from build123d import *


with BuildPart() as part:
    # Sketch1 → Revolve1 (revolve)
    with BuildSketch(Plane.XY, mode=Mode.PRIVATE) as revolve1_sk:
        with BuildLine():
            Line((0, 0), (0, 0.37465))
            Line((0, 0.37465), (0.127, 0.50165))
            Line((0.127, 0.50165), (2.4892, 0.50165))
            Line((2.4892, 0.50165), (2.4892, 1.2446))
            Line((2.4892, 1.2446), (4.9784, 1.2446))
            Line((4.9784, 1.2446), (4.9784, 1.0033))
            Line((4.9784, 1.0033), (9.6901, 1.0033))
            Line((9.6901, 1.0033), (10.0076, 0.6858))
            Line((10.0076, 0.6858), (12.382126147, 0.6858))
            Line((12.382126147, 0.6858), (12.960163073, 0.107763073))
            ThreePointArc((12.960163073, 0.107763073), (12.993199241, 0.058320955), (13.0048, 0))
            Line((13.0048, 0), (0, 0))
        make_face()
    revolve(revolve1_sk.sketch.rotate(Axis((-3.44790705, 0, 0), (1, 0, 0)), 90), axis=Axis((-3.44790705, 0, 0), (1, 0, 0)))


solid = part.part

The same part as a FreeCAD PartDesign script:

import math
import FreeCAD as App
import Part
import Sketcher

V = App.Vector
Q = App.Units.Quantity

doc = App.newDocument("Part")
body = doc.addObject("PartDesign::Body", "Body")

# Sketch on XY plane
sketch1 = doc.addObject("Sketcher::SketchObject", "Sketch")
body.addObject(sketch1)
sketch1.AttachmentSupport = (doc.XY_Plane, [""])
sketch1.MapMode = "FlatFace"
sketch1.addGeometry([
    Part.LineSegment(V(0, 0.37465, 0), V(0, 0, 0)),  # 0
    Part.LineSegment(V(0, 0, 0), V(13.0048, 0, 0)),  # 1
    Part.ArcOfCircle(Part.Circle(V(12.8524, 0, 0), V(0, 0, 1), 0.1524), math.radians(-0.000001), math.radians(45.000001)),  # 2
    Part.LineSegment(V(12.960163, 0.107763, 0), V(12.382126, 0.6858, 0)),  # 3
    Part.LineSegment(V(12.382126, 0.6858, 0), V(10.0076, 0.6858, 0)),  # 4
    Part.LineSegment(V(10.0076, 0.6858, 0), V(9.6901, 1.0033, 0)),  # 5
    Part.LineSegment(V(9.6901, 1.0033, 0), V(4.9784, 1.0033, 0)),  # 6
    Part.LineSegment(V(4.9784, 1.0033, 0), V(4.9784, 1.2446, 0)),  # 7
    Part.LineSegment(V(4.9784, 1.2446, 0), V(2.4892, 1.2446, 0)),  # 8
    Part.LineSegment(V(2.4892, 1.2446, 0), V(2.4892, 0.50165, 0)),  # 9
    Part.LineSegment(V(2.4892, 0.50165, 0), V(0.127, 0.50165, 0)),  # 10
    Part.LineSegment(V(0.127, 0.50165, 0), V(0, 0.37465, 0)),  # 11
], False)
sketch1.addConstraint([
    Sketcher.Constraint("Coincident", 0, 2, 1, 1),
    Sketcher.Constraint("Coincident", 1, 2, 2, 1),
    Sketcher.Constraint("Tangent", 2, 2, 3, 1),
    Sketcher.Constraint("Coincident", 3, 2, 4, 1),
    Sketcher.Constraint("Coincident", 4, 2, 5, 1),
    Sketcher.Constraint("Coincident", 5, 2, 6, 1),
    Sketcher.Constraint("Coincident", 6, 2, 7, 1),
    Sketcher.Constraint("Coincident", 7, 2, 8, 1),
    Sketcher.Constraint("Coincident", 8, 2, 9, 1),
    Sketcher.Constraint("Coincident", 9, 2, 10, 1),
    Sketcher.Constraint("Coincident", 10, 2, 11, 1),
    Sketcher.Constraint("Coincident", 11, 2, 0, 1),
    Sketcher.Constraint("Vertical", 0),
    Sketcher.Constraint("Horizontal", 1),
    Sketcher.Constraint("Horizontal", 4),
    Sketcher.Constraint("Horizontal", 6),
    Sketcher.Constraint("Vertical", 7),
    Sketcher.Constraint("Horizontal", 8),
    Sketcher.Constraint("Vertical", 9),
    Sketcher.Constraint("Horizontal", 10),
    Sketcher.Constraint("Coincident", 0, 2, -1, 1),
    Sketcher.Constraint("PointOnObject", 2, 3, -1),
    Sketcher.Constraint("Parallel", 3, 5),
    Sketcher.Constraint("Perpendicular", 5, 11),
    Sketcher.Constraint("Angle", 3, Q("135 deg")),
    Sketcher.Constraint("Radius", 2, Q("0.006 in")),
    Sketcher.Constraint("DistanceX", 1, 1, 1, 2, Q("0.512 in")),
    Sketcher.Constraint("DistanceX", 8, 2, 8, 1, Q("0.098 in")),
    Sketcher.Constraint("DistanceX", 10, 2, 10, 1, Q("0.093 in")),
    Sketcher.Constraint("DistanceX", 6, 2, 2, 3, Q("0.31 in")),
    Sketcher.Constraint("DistanceX", 6, 2, 6, 1, Q("0.1855 in")),
    Sketcher.Constraint("DistanceY", 7, 1, 7, 2, Q("0.0095 in")),
    Sketcher.Constraint("DistanceY", -1, 1, 3, 2, Q("0.027 in")),
    Sketcher.Constraint("DistanceX", -1, 1, 4, 2, Q("0.394 in")),
    Sketcher.Constraint("DistanceY", 0, 2, 0, 1, Q("0.37465 mm")),
])
revolution = doc.addObject("PartDesign::Revolution", "Revolution")
body.addObject(revolution)
revolution.Profile = sketch1
revolution.ReferenceAxis = (sketch1, ["H_Axis"])
revolution.Angle = 360

doc.recompute()
